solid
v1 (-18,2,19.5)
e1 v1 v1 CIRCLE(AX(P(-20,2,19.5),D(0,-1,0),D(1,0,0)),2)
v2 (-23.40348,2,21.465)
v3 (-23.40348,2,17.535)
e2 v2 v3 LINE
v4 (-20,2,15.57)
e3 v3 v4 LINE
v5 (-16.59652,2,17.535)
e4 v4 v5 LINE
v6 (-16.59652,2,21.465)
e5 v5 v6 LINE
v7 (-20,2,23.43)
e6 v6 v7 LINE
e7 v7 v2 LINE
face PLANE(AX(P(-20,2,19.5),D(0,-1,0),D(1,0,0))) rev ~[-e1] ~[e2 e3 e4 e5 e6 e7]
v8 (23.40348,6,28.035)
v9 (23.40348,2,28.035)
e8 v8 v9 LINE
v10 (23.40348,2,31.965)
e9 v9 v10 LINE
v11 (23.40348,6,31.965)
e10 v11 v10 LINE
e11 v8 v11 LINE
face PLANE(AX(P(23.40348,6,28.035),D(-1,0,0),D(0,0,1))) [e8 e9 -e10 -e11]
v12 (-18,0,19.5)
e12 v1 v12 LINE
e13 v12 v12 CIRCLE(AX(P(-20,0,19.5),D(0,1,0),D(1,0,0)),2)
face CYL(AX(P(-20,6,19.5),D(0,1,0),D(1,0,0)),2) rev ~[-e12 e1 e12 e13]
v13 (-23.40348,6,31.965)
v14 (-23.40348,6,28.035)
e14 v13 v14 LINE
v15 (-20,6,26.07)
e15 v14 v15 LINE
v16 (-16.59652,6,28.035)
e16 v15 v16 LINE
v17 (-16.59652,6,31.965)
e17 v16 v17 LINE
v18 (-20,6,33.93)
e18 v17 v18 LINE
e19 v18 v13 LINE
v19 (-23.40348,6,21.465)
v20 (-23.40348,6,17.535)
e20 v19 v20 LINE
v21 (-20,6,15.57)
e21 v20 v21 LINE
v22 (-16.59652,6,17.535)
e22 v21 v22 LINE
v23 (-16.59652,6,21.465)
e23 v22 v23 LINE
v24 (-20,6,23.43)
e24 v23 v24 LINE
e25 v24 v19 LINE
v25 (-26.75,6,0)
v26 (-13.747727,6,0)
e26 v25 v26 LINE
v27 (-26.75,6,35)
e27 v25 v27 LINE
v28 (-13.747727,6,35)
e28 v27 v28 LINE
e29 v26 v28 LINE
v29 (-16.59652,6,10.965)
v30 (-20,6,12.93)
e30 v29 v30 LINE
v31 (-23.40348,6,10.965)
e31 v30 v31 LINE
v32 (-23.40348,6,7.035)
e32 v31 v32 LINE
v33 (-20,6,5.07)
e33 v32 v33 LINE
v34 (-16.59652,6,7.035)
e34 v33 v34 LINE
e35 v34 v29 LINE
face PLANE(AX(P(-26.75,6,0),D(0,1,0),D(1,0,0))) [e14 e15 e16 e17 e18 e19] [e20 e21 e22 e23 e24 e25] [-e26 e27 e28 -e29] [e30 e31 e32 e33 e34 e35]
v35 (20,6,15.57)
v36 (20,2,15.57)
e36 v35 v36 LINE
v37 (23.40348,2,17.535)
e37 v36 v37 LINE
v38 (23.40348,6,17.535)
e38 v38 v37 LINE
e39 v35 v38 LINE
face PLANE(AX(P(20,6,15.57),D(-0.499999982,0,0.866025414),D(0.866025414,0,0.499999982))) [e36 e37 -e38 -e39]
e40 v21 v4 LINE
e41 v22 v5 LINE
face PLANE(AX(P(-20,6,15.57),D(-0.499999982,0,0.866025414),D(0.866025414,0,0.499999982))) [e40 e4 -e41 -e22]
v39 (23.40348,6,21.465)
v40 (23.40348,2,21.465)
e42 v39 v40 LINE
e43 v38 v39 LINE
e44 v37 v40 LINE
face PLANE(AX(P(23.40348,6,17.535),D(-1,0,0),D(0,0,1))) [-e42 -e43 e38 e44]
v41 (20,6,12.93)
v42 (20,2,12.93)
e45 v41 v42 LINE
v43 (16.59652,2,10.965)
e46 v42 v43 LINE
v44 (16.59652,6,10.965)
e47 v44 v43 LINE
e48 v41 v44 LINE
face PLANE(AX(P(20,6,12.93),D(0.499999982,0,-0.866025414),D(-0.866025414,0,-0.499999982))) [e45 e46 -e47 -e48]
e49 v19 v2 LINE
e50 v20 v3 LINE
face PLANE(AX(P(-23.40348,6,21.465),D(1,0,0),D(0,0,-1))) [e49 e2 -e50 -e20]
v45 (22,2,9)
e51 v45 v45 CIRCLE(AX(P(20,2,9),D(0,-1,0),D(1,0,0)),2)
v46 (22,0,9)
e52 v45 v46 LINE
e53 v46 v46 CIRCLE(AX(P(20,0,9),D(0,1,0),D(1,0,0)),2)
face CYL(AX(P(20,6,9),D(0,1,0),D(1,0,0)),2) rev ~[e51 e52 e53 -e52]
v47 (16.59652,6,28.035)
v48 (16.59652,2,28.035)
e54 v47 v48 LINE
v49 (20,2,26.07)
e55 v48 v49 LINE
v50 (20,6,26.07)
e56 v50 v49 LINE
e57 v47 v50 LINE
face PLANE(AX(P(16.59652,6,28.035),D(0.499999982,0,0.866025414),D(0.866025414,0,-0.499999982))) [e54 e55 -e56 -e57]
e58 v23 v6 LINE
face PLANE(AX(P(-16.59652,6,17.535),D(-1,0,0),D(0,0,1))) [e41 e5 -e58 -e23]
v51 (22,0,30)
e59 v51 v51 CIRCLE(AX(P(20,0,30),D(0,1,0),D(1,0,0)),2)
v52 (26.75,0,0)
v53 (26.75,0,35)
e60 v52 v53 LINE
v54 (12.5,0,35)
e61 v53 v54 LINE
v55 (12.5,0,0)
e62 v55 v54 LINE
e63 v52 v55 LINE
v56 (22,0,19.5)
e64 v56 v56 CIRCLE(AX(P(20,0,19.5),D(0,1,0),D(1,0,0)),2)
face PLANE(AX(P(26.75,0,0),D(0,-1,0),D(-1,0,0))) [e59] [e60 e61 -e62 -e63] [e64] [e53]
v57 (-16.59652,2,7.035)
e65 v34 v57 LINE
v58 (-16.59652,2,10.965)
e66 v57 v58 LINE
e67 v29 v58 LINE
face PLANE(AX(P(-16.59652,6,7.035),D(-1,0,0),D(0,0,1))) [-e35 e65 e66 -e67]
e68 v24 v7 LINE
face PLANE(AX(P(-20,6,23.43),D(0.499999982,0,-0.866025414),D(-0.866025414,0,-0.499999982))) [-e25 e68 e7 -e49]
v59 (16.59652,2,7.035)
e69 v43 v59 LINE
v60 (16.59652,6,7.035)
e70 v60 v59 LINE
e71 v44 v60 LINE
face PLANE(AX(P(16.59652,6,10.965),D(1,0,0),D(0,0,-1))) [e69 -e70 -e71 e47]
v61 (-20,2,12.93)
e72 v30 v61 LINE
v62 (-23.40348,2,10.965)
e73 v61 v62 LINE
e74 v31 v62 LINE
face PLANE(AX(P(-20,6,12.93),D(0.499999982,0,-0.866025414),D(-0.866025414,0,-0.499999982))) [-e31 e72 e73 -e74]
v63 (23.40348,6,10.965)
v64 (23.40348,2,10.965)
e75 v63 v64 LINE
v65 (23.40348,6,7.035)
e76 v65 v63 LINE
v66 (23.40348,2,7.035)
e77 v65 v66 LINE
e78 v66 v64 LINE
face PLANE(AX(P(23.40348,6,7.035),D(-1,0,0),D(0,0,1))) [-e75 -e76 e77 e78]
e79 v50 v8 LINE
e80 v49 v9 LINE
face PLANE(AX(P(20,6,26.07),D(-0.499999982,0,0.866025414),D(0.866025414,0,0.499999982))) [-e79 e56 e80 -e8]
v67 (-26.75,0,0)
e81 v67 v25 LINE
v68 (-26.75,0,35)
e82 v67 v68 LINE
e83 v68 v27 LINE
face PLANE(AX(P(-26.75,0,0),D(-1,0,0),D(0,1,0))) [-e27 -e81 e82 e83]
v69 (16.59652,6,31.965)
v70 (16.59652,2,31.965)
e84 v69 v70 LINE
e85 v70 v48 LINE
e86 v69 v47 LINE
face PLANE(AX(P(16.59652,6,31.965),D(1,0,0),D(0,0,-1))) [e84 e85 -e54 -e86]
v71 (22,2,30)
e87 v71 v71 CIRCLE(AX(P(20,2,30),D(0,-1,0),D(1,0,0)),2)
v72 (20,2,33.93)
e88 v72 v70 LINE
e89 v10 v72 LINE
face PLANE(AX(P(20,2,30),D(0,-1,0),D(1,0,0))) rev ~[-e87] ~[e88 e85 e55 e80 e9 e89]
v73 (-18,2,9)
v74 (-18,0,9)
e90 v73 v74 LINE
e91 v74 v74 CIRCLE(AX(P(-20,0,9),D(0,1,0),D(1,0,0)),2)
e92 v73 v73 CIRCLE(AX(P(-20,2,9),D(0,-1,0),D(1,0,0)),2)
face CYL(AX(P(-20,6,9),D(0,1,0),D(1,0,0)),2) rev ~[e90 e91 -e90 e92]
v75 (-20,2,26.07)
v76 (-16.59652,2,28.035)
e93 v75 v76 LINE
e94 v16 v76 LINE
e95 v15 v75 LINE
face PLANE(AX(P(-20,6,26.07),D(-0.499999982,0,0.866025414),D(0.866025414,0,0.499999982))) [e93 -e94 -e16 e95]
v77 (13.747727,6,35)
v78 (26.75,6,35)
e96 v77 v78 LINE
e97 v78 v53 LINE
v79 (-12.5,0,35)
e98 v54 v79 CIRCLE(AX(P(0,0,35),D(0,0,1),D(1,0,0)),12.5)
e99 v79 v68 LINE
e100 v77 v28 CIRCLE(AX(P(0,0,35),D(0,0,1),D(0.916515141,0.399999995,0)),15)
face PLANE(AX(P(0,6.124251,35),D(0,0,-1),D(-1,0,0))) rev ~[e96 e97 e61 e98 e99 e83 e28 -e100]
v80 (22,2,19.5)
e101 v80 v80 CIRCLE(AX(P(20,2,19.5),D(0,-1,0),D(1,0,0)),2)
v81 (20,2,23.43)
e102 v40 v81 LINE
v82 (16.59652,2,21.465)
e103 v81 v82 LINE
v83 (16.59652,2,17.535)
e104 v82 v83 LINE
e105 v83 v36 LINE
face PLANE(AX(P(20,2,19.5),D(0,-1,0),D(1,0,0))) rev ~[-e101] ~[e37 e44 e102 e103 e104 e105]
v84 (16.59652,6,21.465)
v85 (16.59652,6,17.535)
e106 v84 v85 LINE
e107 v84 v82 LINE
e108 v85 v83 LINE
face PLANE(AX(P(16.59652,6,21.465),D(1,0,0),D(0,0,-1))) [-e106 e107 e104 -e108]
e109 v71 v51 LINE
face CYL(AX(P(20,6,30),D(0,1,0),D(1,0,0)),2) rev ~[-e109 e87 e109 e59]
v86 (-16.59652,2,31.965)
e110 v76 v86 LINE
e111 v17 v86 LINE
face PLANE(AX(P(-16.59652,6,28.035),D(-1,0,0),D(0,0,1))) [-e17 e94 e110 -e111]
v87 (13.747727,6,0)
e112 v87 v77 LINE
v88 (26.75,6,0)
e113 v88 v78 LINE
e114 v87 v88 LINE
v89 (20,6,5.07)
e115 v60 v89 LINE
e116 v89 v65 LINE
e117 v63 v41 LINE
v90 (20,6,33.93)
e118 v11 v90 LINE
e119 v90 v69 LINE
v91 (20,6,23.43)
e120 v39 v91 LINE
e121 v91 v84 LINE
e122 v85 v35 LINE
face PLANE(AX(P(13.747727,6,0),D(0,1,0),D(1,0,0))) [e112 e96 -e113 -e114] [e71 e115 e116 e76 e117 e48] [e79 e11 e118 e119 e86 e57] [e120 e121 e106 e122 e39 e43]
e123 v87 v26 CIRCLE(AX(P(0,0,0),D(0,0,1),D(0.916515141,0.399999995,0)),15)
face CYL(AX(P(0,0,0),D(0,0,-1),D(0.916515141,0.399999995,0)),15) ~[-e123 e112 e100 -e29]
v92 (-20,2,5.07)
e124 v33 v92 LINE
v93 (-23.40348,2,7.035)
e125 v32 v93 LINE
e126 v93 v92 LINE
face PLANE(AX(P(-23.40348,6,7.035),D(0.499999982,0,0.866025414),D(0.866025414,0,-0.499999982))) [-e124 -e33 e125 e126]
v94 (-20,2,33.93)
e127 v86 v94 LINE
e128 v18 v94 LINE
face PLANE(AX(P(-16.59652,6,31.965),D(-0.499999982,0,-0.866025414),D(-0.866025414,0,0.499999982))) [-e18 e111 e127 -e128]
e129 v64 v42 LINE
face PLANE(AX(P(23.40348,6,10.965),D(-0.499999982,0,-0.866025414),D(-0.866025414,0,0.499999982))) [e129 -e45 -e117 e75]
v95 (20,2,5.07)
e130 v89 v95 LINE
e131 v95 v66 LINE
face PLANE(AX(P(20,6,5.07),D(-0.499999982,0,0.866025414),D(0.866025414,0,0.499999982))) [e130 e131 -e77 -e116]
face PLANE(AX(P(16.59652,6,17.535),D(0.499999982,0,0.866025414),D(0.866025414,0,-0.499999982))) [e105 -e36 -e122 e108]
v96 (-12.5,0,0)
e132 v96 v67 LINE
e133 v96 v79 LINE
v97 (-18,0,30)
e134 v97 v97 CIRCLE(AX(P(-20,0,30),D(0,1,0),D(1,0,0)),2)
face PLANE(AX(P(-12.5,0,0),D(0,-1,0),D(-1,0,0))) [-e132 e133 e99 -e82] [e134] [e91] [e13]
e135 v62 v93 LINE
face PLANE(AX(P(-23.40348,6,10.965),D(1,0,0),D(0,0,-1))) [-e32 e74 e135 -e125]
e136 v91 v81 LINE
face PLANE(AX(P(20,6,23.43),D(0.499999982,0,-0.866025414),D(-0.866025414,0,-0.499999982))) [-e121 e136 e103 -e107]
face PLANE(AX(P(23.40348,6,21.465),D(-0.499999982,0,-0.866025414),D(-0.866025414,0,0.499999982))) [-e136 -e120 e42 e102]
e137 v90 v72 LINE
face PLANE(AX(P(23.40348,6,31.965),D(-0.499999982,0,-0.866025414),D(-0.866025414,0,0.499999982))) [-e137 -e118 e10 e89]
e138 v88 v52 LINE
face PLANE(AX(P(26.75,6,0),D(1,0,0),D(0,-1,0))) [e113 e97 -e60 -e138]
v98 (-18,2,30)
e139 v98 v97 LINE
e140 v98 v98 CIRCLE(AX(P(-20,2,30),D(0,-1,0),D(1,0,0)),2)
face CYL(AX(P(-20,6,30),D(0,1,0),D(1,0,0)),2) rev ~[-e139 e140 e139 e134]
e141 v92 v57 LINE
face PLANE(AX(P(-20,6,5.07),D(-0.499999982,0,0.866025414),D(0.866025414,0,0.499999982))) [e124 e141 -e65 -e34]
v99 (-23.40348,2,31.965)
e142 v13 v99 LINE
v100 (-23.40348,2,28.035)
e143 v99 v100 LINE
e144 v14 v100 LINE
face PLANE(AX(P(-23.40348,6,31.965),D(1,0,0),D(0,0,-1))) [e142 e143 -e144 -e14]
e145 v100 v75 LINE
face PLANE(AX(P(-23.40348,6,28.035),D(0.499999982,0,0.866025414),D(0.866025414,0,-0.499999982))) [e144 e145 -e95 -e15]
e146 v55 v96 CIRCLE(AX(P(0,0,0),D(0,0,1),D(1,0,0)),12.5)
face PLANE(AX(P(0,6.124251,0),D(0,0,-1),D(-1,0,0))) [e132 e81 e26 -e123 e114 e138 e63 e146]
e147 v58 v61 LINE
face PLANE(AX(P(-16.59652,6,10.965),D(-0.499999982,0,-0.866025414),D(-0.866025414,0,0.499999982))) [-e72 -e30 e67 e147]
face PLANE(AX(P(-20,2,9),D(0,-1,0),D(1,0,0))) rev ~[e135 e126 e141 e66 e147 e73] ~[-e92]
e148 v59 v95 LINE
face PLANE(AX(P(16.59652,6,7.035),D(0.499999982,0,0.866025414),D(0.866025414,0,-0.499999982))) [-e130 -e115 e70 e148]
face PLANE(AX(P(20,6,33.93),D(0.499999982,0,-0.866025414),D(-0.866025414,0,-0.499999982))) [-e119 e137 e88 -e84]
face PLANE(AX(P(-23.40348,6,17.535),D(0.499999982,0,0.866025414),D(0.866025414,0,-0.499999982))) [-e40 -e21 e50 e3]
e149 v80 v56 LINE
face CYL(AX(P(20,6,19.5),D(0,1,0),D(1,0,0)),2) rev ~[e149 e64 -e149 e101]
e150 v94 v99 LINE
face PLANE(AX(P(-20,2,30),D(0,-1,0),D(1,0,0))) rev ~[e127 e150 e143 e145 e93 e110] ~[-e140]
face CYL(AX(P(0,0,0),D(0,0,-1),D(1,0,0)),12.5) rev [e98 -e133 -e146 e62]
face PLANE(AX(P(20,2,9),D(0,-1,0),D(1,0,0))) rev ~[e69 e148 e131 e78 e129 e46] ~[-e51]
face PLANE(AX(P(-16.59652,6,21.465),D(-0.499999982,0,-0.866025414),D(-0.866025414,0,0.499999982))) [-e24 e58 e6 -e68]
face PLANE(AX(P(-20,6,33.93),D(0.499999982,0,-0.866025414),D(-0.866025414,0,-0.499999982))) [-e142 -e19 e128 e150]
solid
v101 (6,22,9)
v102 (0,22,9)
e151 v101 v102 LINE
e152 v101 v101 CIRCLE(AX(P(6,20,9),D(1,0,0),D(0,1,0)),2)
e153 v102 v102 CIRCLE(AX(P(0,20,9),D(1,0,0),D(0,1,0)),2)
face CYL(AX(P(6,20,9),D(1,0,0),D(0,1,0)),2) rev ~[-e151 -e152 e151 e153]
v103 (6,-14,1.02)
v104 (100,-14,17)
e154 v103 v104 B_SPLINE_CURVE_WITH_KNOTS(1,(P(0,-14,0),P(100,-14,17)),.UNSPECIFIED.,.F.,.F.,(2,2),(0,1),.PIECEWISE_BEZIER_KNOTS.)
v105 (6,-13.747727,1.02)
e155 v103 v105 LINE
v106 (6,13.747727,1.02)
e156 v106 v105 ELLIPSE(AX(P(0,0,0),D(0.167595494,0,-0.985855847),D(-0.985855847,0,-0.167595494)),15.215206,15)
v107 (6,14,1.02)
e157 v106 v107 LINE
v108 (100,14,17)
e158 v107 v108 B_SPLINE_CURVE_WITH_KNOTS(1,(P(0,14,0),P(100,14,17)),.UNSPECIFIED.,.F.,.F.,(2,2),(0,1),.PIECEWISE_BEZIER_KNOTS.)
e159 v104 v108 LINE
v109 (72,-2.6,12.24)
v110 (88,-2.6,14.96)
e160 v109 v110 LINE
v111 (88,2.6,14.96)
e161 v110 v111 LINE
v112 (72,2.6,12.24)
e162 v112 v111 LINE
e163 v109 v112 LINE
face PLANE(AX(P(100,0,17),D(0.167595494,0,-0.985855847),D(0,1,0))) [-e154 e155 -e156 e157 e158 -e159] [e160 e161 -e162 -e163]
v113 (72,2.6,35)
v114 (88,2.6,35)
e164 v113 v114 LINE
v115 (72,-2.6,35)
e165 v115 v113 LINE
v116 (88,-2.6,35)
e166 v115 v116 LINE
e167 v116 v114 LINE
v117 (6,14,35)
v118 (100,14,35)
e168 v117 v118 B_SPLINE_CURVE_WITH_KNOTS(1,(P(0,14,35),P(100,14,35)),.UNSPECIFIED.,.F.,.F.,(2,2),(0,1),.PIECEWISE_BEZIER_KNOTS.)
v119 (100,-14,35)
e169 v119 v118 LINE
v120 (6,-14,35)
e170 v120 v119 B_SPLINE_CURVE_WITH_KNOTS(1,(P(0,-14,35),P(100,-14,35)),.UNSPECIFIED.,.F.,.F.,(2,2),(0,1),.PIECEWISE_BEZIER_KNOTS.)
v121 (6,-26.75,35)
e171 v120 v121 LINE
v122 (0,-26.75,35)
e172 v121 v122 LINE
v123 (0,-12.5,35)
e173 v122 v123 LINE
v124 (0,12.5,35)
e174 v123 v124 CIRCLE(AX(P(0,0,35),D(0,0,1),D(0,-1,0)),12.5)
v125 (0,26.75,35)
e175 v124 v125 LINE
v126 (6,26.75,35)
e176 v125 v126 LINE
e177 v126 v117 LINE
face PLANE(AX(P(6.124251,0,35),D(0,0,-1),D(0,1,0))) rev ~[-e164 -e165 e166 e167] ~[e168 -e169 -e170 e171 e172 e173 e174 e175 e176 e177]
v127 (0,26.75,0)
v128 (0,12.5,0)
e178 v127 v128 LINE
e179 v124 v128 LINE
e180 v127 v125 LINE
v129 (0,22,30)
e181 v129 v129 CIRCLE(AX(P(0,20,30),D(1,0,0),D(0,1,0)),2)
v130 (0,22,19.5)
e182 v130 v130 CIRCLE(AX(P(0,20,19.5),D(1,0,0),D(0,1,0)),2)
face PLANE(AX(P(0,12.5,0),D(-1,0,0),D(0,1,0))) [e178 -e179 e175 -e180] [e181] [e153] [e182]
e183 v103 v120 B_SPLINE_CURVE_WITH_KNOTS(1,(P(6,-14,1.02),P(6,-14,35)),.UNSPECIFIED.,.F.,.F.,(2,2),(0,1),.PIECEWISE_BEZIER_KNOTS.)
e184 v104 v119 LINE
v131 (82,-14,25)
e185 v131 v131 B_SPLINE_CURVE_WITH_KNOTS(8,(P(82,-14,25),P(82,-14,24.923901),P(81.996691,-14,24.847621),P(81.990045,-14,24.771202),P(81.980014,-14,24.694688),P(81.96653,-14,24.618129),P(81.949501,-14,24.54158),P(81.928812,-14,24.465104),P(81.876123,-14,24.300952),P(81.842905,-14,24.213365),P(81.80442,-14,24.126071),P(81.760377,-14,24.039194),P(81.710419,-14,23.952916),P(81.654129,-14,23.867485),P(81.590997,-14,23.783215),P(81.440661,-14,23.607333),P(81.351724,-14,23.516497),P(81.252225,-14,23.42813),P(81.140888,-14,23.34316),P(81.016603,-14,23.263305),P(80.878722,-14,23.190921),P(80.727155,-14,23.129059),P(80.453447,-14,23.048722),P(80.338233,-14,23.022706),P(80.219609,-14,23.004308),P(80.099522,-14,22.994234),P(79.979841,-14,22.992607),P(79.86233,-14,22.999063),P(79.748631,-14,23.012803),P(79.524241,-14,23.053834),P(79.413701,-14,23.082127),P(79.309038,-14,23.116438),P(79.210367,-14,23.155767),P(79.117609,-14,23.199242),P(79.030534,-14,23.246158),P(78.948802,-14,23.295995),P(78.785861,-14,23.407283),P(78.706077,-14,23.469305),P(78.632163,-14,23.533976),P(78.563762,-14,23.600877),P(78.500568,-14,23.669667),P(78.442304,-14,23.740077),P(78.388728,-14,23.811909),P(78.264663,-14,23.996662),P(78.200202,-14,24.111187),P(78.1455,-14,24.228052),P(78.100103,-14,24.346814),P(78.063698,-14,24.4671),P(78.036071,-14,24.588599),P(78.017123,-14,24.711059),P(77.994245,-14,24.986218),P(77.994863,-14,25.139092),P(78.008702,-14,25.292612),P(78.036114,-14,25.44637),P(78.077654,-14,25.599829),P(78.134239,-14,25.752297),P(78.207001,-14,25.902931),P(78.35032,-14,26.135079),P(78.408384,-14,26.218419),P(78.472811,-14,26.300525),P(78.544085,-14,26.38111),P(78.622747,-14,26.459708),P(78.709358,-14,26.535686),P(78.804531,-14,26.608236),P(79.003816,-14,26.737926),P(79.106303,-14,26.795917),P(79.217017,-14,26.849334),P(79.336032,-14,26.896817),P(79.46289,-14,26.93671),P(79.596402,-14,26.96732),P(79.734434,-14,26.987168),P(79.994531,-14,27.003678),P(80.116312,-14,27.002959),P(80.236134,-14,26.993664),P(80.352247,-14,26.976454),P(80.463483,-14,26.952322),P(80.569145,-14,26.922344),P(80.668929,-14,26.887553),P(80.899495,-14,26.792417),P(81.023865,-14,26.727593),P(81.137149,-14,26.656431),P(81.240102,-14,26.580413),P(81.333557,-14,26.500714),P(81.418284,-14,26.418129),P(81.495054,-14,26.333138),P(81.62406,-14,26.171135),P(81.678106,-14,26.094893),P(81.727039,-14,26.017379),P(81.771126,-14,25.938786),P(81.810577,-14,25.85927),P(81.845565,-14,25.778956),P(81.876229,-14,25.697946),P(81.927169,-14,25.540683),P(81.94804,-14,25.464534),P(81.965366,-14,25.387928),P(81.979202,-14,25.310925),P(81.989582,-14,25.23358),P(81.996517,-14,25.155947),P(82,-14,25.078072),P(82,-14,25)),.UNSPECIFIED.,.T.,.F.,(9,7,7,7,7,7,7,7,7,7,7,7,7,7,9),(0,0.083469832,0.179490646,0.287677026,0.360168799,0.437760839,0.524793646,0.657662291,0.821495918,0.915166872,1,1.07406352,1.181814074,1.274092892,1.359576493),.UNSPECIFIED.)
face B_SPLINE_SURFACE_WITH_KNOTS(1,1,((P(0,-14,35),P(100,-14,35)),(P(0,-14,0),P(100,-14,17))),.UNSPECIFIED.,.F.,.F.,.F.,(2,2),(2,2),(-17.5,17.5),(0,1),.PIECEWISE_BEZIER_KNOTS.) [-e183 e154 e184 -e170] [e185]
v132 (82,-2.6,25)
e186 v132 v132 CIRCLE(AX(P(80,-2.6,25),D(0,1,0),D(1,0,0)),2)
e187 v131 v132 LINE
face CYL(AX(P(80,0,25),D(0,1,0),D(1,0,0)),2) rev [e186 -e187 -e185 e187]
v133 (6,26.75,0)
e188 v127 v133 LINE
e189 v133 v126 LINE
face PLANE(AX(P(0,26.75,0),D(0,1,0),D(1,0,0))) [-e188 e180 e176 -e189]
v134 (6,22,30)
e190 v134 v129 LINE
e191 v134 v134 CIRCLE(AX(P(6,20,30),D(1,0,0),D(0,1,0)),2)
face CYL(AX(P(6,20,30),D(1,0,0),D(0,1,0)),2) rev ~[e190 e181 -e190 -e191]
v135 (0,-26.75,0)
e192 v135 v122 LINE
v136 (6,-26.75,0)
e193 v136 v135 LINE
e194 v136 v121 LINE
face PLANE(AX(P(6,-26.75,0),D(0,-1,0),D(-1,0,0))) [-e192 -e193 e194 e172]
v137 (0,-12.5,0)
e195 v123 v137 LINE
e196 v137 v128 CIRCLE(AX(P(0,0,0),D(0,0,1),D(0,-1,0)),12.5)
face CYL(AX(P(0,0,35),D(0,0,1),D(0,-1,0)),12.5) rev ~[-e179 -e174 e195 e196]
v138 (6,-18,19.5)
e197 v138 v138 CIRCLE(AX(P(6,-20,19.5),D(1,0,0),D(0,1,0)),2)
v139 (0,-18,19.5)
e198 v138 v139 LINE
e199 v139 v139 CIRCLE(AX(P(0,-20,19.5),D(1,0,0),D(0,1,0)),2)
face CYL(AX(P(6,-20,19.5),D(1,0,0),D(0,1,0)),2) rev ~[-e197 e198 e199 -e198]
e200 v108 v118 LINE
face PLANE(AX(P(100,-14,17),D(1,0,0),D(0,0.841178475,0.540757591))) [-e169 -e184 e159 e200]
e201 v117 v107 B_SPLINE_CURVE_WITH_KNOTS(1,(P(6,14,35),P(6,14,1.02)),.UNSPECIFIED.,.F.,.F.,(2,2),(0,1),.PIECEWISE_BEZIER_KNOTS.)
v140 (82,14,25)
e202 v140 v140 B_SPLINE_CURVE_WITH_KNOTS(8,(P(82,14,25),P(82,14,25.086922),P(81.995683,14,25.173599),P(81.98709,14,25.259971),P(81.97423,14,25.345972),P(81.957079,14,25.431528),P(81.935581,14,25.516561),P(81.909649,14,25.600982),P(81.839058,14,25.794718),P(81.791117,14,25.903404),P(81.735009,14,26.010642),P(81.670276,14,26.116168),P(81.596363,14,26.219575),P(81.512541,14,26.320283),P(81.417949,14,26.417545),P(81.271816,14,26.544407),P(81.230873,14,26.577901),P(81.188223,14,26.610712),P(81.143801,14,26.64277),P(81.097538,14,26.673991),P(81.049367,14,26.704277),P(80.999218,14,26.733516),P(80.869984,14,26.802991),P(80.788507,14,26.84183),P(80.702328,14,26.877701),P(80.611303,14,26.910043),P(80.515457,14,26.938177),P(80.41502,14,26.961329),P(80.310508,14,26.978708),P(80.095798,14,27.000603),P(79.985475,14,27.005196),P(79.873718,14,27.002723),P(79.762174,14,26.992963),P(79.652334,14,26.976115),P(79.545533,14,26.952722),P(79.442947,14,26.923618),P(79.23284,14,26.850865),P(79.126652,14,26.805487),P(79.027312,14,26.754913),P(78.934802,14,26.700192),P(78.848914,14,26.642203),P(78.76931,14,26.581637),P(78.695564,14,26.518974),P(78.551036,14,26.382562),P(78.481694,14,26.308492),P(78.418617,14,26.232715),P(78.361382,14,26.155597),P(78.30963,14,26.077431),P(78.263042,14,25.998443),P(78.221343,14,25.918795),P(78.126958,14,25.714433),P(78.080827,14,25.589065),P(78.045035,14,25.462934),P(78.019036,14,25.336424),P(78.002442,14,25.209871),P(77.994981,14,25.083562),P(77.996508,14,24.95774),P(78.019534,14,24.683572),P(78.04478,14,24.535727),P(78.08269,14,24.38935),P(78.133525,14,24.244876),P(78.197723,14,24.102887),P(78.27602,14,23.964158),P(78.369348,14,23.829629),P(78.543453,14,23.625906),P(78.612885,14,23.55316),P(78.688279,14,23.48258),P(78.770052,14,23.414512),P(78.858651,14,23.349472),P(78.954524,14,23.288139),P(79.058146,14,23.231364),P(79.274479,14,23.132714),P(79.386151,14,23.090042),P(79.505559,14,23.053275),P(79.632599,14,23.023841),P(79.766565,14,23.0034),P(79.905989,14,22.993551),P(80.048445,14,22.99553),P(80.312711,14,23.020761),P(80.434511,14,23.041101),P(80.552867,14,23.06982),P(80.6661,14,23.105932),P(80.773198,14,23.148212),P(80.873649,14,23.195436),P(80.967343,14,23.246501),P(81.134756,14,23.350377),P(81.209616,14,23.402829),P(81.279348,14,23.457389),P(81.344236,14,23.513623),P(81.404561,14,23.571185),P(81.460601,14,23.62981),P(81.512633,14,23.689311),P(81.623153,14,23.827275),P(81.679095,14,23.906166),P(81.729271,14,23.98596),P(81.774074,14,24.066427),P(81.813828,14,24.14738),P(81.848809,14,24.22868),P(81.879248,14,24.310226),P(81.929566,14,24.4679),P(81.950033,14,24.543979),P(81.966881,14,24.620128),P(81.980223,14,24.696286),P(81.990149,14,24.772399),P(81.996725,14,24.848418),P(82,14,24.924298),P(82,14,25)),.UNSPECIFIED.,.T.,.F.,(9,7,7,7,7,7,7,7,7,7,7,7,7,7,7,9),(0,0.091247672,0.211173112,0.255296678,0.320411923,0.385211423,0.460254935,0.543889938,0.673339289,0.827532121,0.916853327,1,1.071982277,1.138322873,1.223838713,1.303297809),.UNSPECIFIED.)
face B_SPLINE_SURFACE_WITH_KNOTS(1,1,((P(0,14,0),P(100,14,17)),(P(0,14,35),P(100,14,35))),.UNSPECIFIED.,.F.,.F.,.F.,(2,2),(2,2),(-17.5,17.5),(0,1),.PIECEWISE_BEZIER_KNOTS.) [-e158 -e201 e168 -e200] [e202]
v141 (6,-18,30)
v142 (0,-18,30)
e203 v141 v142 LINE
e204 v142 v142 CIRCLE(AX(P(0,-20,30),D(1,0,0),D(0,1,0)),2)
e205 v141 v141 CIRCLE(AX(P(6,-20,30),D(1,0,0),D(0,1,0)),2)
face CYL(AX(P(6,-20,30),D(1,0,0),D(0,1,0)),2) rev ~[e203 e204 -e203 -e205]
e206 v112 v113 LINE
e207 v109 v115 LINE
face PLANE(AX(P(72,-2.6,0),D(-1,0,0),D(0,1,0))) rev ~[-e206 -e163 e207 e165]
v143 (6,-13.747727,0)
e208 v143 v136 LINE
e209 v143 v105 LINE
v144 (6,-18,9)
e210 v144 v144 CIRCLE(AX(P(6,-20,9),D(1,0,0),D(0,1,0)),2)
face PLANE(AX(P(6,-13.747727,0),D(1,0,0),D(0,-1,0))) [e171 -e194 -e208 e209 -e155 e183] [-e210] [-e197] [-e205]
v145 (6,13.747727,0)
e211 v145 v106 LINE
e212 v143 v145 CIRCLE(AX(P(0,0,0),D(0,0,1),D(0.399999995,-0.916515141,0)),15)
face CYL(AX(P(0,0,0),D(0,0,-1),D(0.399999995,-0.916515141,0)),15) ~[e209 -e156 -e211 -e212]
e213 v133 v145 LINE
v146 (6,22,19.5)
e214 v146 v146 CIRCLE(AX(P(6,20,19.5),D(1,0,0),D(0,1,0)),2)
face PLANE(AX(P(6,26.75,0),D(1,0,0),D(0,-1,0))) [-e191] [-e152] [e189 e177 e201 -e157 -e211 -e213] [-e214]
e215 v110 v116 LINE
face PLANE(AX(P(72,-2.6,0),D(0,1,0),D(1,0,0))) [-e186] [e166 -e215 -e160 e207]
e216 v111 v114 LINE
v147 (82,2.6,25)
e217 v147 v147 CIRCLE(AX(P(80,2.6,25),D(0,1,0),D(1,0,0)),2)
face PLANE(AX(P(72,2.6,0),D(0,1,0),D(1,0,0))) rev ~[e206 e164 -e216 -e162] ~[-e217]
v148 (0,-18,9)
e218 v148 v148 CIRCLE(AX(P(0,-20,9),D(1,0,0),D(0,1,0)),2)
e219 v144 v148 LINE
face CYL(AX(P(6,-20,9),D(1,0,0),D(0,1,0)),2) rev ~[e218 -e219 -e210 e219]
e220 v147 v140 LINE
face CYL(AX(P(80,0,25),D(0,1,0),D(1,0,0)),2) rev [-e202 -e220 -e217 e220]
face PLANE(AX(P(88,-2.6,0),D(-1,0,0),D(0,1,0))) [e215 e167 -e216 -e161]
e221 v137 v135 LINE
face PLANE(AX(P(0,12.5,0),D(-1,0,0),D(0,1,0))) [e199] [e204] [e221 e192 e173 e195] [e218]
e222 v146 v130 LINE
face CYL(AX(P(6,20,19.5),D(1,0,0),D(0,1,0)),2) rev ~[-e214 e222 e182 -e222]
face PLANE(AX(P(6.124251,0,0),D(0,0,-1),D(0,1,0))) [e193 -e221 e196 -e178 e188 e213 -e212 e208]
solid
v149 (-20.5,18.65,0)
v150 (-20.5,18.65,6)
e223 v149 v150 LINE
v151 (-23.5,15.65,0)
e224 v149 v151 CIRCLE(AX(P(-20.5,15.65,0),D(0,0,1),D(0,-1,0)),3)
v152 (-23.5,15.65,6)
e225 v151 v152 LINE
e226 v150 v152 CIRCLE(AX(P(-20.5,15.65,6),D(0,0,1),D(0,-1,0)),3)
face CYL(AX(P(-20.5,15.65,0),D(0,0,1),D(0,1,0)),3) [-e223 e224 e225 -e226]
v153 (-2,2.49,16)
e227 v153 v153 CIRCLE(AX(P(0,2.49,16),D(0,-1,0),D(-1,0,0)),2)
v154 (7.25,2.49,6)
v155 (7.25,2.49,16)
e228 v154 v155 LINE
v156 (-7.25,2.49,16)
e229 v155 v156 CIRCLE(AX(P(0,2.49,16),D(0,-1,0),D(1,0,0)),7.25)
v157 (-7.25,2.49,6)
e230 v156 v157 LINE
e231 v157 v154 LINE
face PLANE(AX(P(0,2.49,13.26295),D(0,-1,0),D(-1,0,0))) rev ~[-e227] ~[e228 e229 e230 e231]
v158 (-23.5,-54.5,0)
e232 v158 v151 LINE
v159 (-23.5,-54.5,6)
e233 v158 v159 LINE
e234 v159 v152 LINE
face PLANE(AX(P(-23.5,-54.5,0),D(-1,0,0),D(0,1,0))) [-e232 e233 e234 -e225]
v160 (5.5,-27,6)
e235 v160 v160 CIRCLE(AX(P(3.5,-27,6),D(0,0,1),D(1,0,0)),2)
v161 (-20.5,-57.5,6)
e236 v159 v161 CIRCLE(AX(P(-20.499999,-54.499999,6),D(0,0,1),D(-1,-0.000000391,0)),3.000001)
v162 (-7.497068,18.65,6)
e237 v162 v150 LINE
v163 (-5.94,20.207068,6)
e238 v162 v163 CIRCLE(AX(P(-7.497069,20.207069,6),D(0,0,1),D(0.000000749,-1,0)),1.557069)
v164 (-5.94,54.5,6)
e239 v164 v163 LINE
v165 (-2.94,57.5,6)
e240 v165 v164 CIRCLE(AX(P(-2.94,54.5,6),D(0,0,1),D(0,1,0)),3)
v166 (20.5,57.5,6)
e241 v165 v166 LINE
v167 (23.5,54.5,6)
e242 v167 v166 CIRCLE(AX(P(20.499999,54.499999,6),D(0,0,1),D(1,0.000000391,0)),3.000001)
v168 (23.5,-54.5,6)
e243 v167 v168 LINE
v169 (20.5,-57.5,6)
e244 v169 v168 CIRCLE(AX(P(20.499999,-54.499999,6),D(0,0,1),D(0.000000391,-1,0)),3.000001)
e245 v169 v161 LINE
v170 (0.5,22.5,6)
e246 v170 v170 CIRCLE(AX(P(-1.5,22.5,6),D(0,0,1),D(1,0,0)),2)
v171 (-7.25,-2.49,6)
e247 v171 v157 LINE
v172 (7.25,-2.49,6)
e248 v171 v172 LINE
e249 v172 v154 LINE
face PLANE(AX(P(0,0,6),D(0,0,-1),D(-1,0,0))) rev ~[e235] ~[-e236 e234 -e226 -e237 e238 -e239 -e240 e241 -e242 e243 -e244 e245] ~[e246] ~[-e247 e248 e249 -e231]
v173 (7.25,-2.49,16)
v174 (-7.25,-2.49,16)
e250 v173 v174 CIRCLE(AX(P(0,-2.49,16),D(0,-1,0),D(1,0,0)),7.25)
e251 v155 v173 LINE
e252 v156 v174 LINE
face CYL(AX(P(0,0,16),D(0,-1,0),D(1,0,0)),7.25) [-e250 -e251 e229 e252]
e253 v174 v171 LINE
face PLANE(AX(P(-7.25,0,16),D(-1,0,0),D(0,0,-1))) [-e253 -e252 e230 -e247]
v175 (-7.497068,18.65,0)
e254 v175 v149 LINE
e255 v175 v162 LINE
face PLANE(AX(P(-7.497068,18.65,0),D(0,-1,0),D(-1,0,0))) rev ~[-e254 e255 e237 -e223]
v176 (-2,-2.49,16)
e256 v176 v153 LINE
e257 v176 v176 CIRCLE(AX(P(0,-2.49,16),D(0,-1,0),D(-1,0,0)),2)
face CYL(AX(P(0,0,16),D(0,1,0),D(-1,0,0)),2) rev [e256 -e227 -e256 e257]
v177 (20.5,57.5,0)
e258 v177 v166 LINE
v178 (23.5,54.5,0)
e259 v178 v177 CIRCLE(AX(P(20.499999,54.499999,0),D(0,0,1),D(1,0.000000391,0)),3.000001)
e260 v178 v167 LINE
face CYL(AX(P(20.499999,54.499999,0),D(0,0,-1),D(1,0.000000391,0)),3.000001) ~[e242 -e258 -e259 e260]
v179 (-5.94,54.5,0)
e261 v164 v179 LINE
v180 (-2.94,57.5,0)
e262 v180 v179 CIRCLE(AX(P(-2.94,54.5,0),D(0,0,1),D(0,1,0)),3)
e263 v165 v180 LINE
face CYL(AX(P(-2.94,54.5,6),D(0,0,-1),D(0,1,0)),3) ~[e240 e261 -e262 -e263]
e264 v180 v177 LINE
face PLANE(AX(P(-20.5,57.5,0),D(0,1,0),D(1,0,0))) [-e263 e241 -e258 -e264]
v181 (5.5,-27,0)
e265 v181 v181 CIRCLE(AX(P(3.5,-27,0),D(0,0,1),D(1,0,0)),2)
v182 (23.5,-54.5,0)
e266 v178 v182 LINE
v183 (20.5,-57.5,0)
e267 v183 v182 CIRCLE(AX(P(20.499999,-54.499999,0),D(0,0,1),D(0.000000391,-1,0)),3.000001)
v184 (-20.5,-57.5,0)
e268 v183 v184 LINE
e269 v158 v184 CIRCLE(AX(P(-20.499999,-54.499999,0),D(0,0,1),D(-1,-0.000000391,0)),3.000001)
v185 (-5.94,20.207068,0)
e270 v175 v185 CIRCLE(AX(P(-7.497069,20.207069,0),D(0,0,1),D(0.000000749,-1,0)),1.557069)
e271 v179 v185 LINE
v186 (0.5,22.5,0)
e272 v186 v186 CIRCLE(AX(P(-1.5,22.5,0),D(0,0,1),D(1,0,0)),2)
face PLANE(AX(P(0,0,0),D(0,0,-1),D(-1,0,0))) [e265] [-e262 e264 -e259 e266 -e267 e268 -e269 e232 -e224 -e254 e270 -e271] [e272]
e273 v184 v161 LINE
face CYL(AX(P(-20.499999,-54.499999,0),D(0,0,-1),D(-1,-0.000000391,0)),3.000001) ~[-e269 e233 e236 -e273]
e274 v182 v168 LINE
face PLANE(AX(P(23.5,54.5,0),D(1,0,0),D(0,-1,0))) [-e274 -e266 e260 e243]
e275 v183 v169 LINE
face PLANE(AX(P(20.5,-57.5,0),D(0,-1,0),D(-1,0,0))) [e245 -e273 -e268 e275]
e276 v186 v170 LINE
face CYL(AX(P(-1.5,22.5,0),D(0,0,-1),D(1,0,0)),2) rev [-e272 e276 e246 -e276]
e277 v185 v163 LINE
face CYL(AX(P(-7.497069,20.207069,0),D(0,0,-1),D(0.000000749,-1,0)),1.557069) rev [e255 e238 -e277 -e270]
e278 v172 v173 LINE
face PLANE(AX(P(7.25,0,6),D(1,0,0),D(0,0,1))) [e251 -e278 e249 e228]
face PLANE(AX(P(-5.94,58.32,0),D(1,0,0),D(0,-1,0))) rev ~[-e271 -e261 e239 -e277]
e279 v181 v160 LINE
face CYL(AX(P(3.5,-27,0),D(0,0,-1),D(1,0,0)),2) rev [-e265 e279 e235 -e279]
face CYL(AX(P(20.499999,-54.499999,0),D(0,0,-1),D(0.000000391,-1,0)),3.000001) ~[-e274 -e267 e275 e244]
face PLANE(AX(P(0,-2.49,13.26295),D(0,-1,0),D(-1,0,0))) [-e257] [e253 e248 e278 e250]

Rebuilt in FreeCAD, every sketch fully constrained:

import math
import FreeCAD as App
import Part
import Sketcher

V = App.Vector
Q = App.Units.Quantity


def edges_at(feature, points):
    """Names of the edges that pass closest to the given points."""
    edges = feature.Shape.Edges
    near = lambda p: min(range(len(edges)), key=lambda i: edges[i].distToShape(Part.Vertex(*p))[0])
    return sorted({f"Edge{near(p) + 1}" for p in points})


def add_polygon(sketch, points):
    """Adds a closed chain of lines whose ends are joined by coincident constraints."""
    first, n = sketch.GeometryCount, len(points)
    for a, b in zip(points, points[1:] + points[:1]):
        sketch.addGeometry(Part.LineSegment(App.Vector(*a, 0), App.Vector(*b, 0)), False)
    for i in range(n):
        sketch.addConstraint(Sketcher.Constraint("Coincident", first + i, 2, first + (i + 1) % n, 1))

doc = App.newDocument("Part")
body = doc.addObject("PartDesign::Body", "Body")

# Sketch on YZ plane
sketch1 = body.newObject("Sketcher::SketchObject", "Sketch")
sketch1.AttachmentSupport = (doc.getObject("YZ_Plane"), [""])
sketch1.MapMode = "FlatFace"
add_polygon(sketch1, [(-14, 35), (-14, 0), (14, 0), (14, 35)])  # lines 0-3
sketch1.addConstraint([
    Sketcher.Constraint("Vertical", 0),
    Sketcher.Constraint("Horizontal", 1),
    Sketcher.Constraint("Vertical", 2),
    Sketcher.Constraint("Horizontal", 3),
    Sketcher.Constraint("Symmetric", 0, 2, 1, 2, -1, 1),
    Sketcher.Constraint("DistanceX", 1, 1, 1, 2, 28.0),
    Sketcher.Constraint("DistanceY", 0, 2, 0, 1, 35.0),
])

# Sketch on YZ plane
sketch2 = body.newObject("Sketcher::SketchObject", "Sketch001")
sketch2.AttachmentSupport = (doc.getObject("YZ_Plane"), [""])
sketch2.MapMode = "FlatFace"
sketch2.AttachmentOffset = App.Placement(V(0, 0, 100), App.Rotation())
add_polygon(sketch2, [(-14, 35), (-14, 17), (14, 17), (14, 35)])  # lines 0-3
sketch2.addConstraint([
    Sketcher.Constraint("Vertical", 0),
    Sketcher.Constraint("Horizontal", 1),
    Sketcher.Constraint("Vertical", 2),
    Sketcher.Constraint("Horizontal", 3),
    Sketcher.Constraint("DistanceX", 1, 1, 1, 2, 28.0),
    Sketcher.Constraint("DistanceY", 0, 2, 0, 1, 18.0),
    Sketcher.Constraint("DistanceX", 0, 2, -1, 1, 14.0),
    Sketcher.Constraint("DistanceY", -1, 1, 0, 2, 17.0),
])

additiveloft = body.newObject("PartDesign::AdditiveLoft", "AdditiveLoft")
additiveloft.Profile = sketch1
additiveloft.Sections = [sketch2]
body2 = doc.addObject("PartDesign::Body", "Body001")

# Sketch on XY plane
sketch3 = body2.newObject("Sketcher::SketchObject", "Sketch002")
sketch3.AttachmentSupport = (doc.getObject("XY_Plane001"), [""])
sketch3.MapMode = "FlatFace"
sketch3.addGeometry([
    Part.ArcOfCircle(Part.Circle(V(0, 0, 0), V(0, 0, 1), 12), math.radians(-90), math.radians(90)),  # 0
    Part.LineSegment(V(0, -12, 0), V(0, -27, 0)),  # 1
    Part.LineSegment(V(0, -27, 0), V(6, -27, 0)),  # 2
    Part.LineSegment(V(6, -27, 0), V(6, -14, 0)),  # 3
    Part.ArcOfCircle(Part.Circle(V(0, 0, 0), V(0, 0, 1), 15), math.radians(-66), math.radians(66)),  # 4
    Part.LineSegment(V(6, 14, 0), V(6, 27, 0)),  # 5
    Part.LineSegment(V(6, 27, 0), V(0, 27, 0)),  # 6
    Part.LineSegment(V(0, 27, 0), V(0, 12, 0)),  # 7
], False)
sketch3.addConstraint([
    Sketcher.Constraint("Coincident", 0, 1, 1, 1),
    Sketcher.Constraint("Coincident", 1, 2, 2, 1),
    Sketcher.Constraint("Coincident", 2, 2, 3, 1),
    Sketcher.Constraint("Coincident", 3, 2, 4, 1),
    Sketcher.Constraint("Coincident", 4, 2, 5, 1),
    Sketcher.Constraint("Coincident", 5, 2, 6, 1),
    Sketcher.Constraint("Coincident", 6, 2, 7, 1),
    Sketcher.Constraint("Coincident", 7, 2, 0, 2),
    Sketcher.Constraint("Vertical", 1),
    Sketcher.Constraint("Horizontal", 2),
    Sketcher.Constraint("Vertical", 3),
    Sketcher.Constraint("Vertical", 5),
    Sketcher.Constraint("Horizontal", 6),
    Sketcher.Constraint("Vertical", 7),
    Sketcher.Constraint("Coincident", 0, 3, -1, 1),
    Sketcher.Constraint("Coincident", 4, 3, -1, 1),
    Sketcher.Constraint("Symmetric", 1, 2, 6, 2, -1, 1),
    Sketcher.Constraint("PointOnObject", 0, 1, -2),
    Sketcher.Constraint("Vertical", 3, 2, 4, 2),
    Sketcher.Constraint("Radius", 4, 15.0),
    Sketcher.Constraint("Radius", 0, 12.5),
    Sketcher.Constraint("DistanceX", 2, 1, 2, 2, 6.0),
    Sketcher.Constraint("DistanceY", 1, 2, 1, 1, 14.25),
])
pad1 = body2.newObject("PartDesign::Pad", "Pad")
pad1.Profile = sketch3
pad1.Length = 35
doc.recompute()

boolean = body2.newObject("PartDesign::Boolean", "Boolean")
boolean.Type = "Fuse"
boolean.addObjects([body])

# Sketch on XY plane
sketch4 = body2.newObject("Sketcher::SketchObject", "Sketch003")
sketch4.AttachmentSupport = (doc.getObject("XY_Plane001"), [""])
sketch4.MapMode = "FlatFace"
sketch4.AttachmentOffset = App.Placement(V(0, 0, 35), App.Rotation())
sketch4.addGeometry([
    Part.ArcOfCircle(Part.Circle(V(0, 0, 0), V(0, 0, 1), 12), math.radians(-90), math.radians(90)),
    Part.LineSegment(V(0, 12, 0), V(0, -12, 0)),
], False)
sketch4.addConstraint([
    Sketcher.Constraint("Coincident", 0, 1, 1, 2),
    Sketcher.Constraint("Coincident", 1, 1, 0, 2),
    Sketcher.Constraint("Vertical", 1),
    Sketcher.Constraint("Coincident", 0, 3, -1, 1),
    Sketcher.Constraint("PointOnObject", 0, 1, -2),
    Sketcher.Constraint("Radius", 0, 12.5),
])
pocket1 = body2.newObject("PartDesign::Pocket", "Pocket")
pocket1.Profile = sketch4
pocket1.Length = 35

# Sketch on XZ plane
sketch5 = body2.newObject("Sketcher::SketchObject", "Sketch004")
sketch5.AttachmentSupport = (doc.getObject("XZ_Plane001"), [""])
sketch5.MapMode = "FlatFace"
sketch5.addGeometry(Part.Circle(V(80, 25, 0), V(0, 0, 1), 2), False)
sketch5.addConstraint([
    Sketcher.Constraint("Diameter", 0, 4.0),
    Sketcher.Constraint("DistanceX", -1, 1, 0, 3, 80.0),
    Sketcher.Constraint("DistanceY", -1, 1, 0, 3, 25.0),
])
pocket2 = body2.newObject("PartDesign::Pocket", "Pocket001")
pocket2.Profile = sketch5
pocket2.Type = "ThroughAll"
pocket2.Midplane = True

# Sketch on XY plane
sketch6 = body2.newObject("Sketcher::SketchObject", "Sketch005")
sketch6.AttachmentSupport = (doc.getObject("XY_Plane001"), [""])
sketch6.MapMode = "FlatFace"
add_polygon(sketch6, [(72, 3), (72, -3), (88, -3), (88, 3)])  # lines 0-3
sketch6.addConstraint([
    Sketcher.Constraint("Vertical", 0),
    Sketcher.Constraint("Horizontal", 1),
    Sketcher.Constraint("Vertical", 2),
    Sketcher.Constraint("Horizontal", 3),
    Sketcher.Constraint("DistanceX", 1, 1, 1, 2, 16.0),
    Sketcher.Constraint("DistanceY", 0, 2, 0, 1, 5.2),
    Sketcher.Constraint("DistanceX", -1, 1, 0, 2, 72.0),
    Sketcher.Constraint("DistanceY", 0, 2, -1, 1, 2.6),
])
pocket3 = body2.newObject("PartDesign::Pocket", "Pocket002")
pocket3.Profile = sketch6
pocket3.Type = "ThroughAll"
pocket3.Reversed = True

# Sketch on YZ plane
sketch7 = body2.newObject("Sketcher::SketchObject", "Sketch006")
sketch7.AttachmentSupport = (doc.getObject("YZ_Plane001"), [""])
sketch7.MapMode = "FlatFace"
sketch7.AttachmentOffset = App.Placement(V(0, 0, 6), App.Rotation())
sketch7.addGeometry([
    Part.Circle(V(-20, 30, 0), V(0, 0, 1), 2),
    Part.Circle(V(20, 30, 0), V(0, 0, 1), 2),
], False)
sketch7.addConstraint([
    Sketcher.Constraint("Equal", 0, 1),
    Sketcher.Constraint("Symmetric", 0, 3, 1, 3, -2),
    Sketcher.Constraint("Diameter", 0, 4.0),
    Sketcher.Constraint("DistanceX", 0, 3, -1, 1, 20.0),
    Sketcher.Constraint("DistanceY", -1, 1, 0, 3, 30.0),
])
pocket4 = body2.newObject("PartDesign::Pocket", "Pocket003")
pocket4.Profile = sketch7
pocket4.Type = "ThroughAll"
doc.recompute()

linearpattern = body2.newObject("PartDesign::LinearPattern", "LinearPattern")
linearpattern.Originals = [pocket4]
linearpattern.Direction = (doc.getObject("Z_Axis001"), [""])
linearpattern.Mode = "offset"
linearpattern.Offset = 10.5
linearpattern.Occurrences = 3
linearpattern.Reversed = True
body2.Tip = linearpattern
body3 = doc.addObject("PartDesign::Body", "Body002")

# Sketch on XY plane
sketch8 = body3.newObject("Sketcher::SketchObject", "Sketch007")
sketch8.AttachmentSupport = (doc.getObject("XY_Plane002"), [""])
sketch8.MapMode = "FlatFace"
sketch8.addGeometry([
    Part.LineSegment(V(20.5, 57.5, 0), V(-20.5, 57.5, 0)),  # 0
    Part.ArcOfCircle(Part.Circle(V(-20.5, 54.5, 0), V(0, 0, 1), 3), math.radians(90), math.radians(180)),  # 1
    Part.LineSegment(V(-23.5, 54.5, 0), V(-23.5, -54.5, 0)),  # 2
    Part.ArcOfCircle(Part.Circle(V(-20.5, -54.5, 0), V(0, 0, 1), 3), math.radians(-180), math.radians(-90)),  # 3
    Part.LineSegment(V(-20.5, -57.5, 0), V(20.5, -57.5, 0)),  # 4
    Part.ArcOfCircle(Part.Circle(V(20.5, -54.5, 0), V(0, 0, 1), 3), math.radians(-90), math.radians(0)),  # 5
    Part.LineSegment(V(23.5, -54.5, 0), V(23.5, 54.5, 0)),  # 6
    Part.ArcOfCircle(Part.Circle(V(20.5, 54.5, 0), V(0, 0, 1), 3), math.radians(0), math.radians(90)),  # 7
    Part.Circle(V(3.5, -27, 0), V(0, 0, 1), 2),  # 8
    Part.Circle(V(-1.5, 22.5, 0), V(0, 0, 1), 2),  # 9
], False)
sketch8.addConstraint([
    Sketcher.Constraint("Tangent", 0, 2, 1, 1),
    Sketcher.Constraint("Tangent", 1, 2, 2, 1),
    Sketcher.Constraint("Tangent", 2, 2, 3, 1),
    Sketcher.Constraint("Tangent", 3, 2, 4, 1),
    Sketcher.Constraint("Tangent", 4, 2, 5, 1),
    Sketcher.Constraint("Tangent", 5, 2, 6, 1),
    Sketcher.Constraint("Tangent", 6, 2, 7, 1),
    Sketcher.Constraint("Tangent", 7, 2, 0, 1),
    Sketcher.Constraint("Horizontal", 0),
    Sketcher.Constraint("Vertical", 2),
    Sketcher.Constraint("Horizontal", 4),
    Sketcher.Constraint("Vertical", 6),
    Sketcher.Constraint("Equal", 1, 3),
    Sketcher.Constraint("Equal", 3, 5),
    Sketcher.Constraint("Equal", 5, 7),
    Sketcher.Constraint("Equal", 8, 9),
    Sketcher.Constraint("Symmetric", 1, 3, 5, 3, -1, 1),
    Sketcher.Constraint("Diameter", 8, 4.0),
    Sketcher.Constraint("Radius", 1, 3.000001),
    Sketcher.Constraint("DistanceX", 0, 2, 0, 1, 41.0),
    Sketcher.Constraint("DistanceY", 2, 2, 2, 1, 109.0),
    Sketcher.Constraint("DistanceY", 8, 3, -1, 1, 27.0),
    Sketcher.Constraint("DistanceX", 8, 3, 5, 3, 16.999999),
    Sketcher.Constraint("DistanceX", 1, 3, 9, 3, 18.999999),
    Sketcher.Constraint("DistanceY", 9, 3, 1, 3, 31.999999),
])
pad2 = body3.newObject("PartDesign::Pad", "Pad001")
pad2.Profile = sketch8
pad2.Length = 6

# Sketch on XZ plane
sketch9 = body3.newObject("Sketcher::SketchObject", "Sketch008")
sketch9.AttachmentSupport = (doc.getObject("XZ_Plane002"), [""])
sketch9.MapMode = "FlatFace"
sketch9.addGeometry([
    Part.LineSegment(V(7.2, 6, 0), V(7.2, 16, 0)),  # 0
    Part.ArcOfCircle(Part.Circle(V(0, 16, 0), V(0, 0, 1), 7.2), math.radians(0), math.radians(180)),  # 1
    Part.LineSegment(V(-7.2, 16, 0), V(-7.2, 6, 0)),  # 2
    Part.LineSegment(V(-7.2, 6, 0), V(7.2, 6, 0)),  # 3
    Part.Circle(V(0, 16, 0), V(0, 0, 1), 2),  # 4
], False)
sketch9.addConstraint([
    Sketcher.Constraint("Tangent", 0, 2, 1, 1),
    Sketcher.Constraint("Tangent", 1, 2, 2, 1),
    Sketcher.Constraint("Coincident", 2, 2, 3, 1),
    Sketcher.Constraint("Coincident", 3, 2, 0, 1),
    Sketcher.Constraint("Vertical", 0),
    Sketcher.Constraint("Vertical", 2),
    Sketcher.Constraint("Horizontal", 3),
    Sketcher.Constraint("Coincident", 4, 3, 1, 3),
    Sketcher.Constraint("PointOnObject", 1, 3, -2),
    Sketcher.Constraint("Diameter", 4, 4.0),
    Sketcher.Constraint("DistanceY", 0, 1, 0, 2, 10.0),
    Sketcher.Constraint("Radius", 1, 7.25),
    Sketcher.Constraint("DistanceY", -1, 1, 1, 3, 16.0),
])
pad3 = body3.newObject("PartDesign::Pad", "Pad002")
pad3.Profile = sketch9
pad3.Length = 4.98
pad3.Midplane = True

# Sketch on XY plane
sketch10 = body3.newObject("Sketcher::SketchObject", "Sketch009")
sketch10.AttachmentSupport = (doc.getObject("XY_Plane002"), [""])
sketch10.MapMode = "FlatFace"
sketch10.addGeometry([
    Part.LineSegment(V(-5.9, 58.3, 0), V(-25.4, 58.3, 0)),  # 0
    Part.LineSegment(V(-25.4, 58.3, 0), V(-25.4, 20.4, 0)),  # 1
    Part.ArcOfCircle(Part.Circle(V(-23.6, 20.4, 0), V(0, 0, 1), 1.8), math.radians(-180), math.radians(-90)),  # 2
    Part.LineSegment(V(-23.6, 18.6, 0), V(-7.5, 18.6, 0)),  # 3
    Part.ArcOfCircle(Part.Circle(V(-7.5, 20.2, 0), V(0, 0, 1), 1.6), math.radians(-90), math.radians(0)),  # 4
    Part.LineSegment(V(-5.9, 20.2, 0), V(-5.9, 58.3, 0)),  # 5
], False)
sketch10.addConstraint([
    Sketcher.Constraint("Coincident", 0, 2, 1, 1),
    Sketcher.Constraint("Tangent", 1, 2, 2, 1),
    Sketcher.Constraint("Tangent", 2, 2, 3, 1),
    Sketcher.Constraint("Tangent", 3, 2, 4, 1),
    Sketcher.Constraint("Tangent", 4, 2, 5, 1),
    Sketcher.Constraint("Coincident", 5, 2, 0, 1),
    Sketcher.Constraint("Horizontal", 0),
    Sketcher.Constraint("Vertical", 1),
    Sketcher.Constraint("Horizontal", 3),
    Sketcher.Constraint("Vertical", 5),
    Sketcher.Constraint("Radius", 2, 1.78),
    Sketcher.Constraint("DistanceX", 0, 2, 0, 1, 19.43),
    Sketcher.Constraint("DistanceY", 1, 2, 1, 1, 37.89),
    Sketcher.Constraint("DistanceX", 2, 3, -1, 1, 23.59),
    Sketcher.Constraint("DistanceY", -1, 1, 2, 3, 20.43),
    Sketcher.Constraint("Radius", 4, 1.557069),
])
pocket5 = body3.newObject("PartDesign::Pocket", "Pocket004")
pocket5.Profile = sketch10
pocket5.Length = 6
pocket5.Reversed = True
doc.recompute()

fillet = body3.newObject("PartDesign::Fillet", "Fillet")
fillet.Base = (pocket5, edges_at(pocket5, [(-5.94, 57.5, 3), (-23.5, 18.65, 3)]))
fillet.Radius = 3
body4 = doc.addObject("PartDesign::Body", "Body003")

# Sketch on XY plane
sketch11 = body4.newObject("Sketcher::SketchObject", "Sketch010")
sketch11.AttachmentSupport = (doc.getObject("XY_Plane003"), [""])
sketch11.MapMode = "FlatFace"
sketch11.addGeometry([
    Part.ArcOfCircle(Part.Circle(V(0, 0, 0), V(0, 0, 1), 12), math.radians(0), math.radians(180)),  # 0
    Part.LineSegment(V(12, 0, 0), V(27, 0, 0)),  # 1
    Part.LineSegment(V(27, 0, 0), V(27, 6, 0)),  # 2
    Part.LineSegment(V(27, 6, 0), V(14, 6, 0)),  # 3
    Part.ArcOfCircle(Part.Circle(V(0, 0, 0), V(0, 0, 1), 15), math.radians(24), math.radians(156)),  # 4
    Part.LineSegment(V(-14, 6, 0), V(-27, 6, 0)),  # 5
    Part.LineSegment(V(-27, 6, 0), V(-27, 0, 0)),  # 6
    Part.LineSegment(V(-27, 0, 0), V(-12, 0, 0)),  # 7
], False)
sketch11.addConstraint([
    Sketcher.Constraint("Coincident", 0, 1, 1, 1),
    Sketcher.Constraint("Coincident", 1, 2, 2, 1),
    Sketcher.Constraint("Coincident", 2, 2, 3, 1),
    Sketcher.Constraint("Coincident", 3, 2, 4, 1),
    Sketcher.Constraint("Coincident", 4, 2, 5, 1),
    Sketcher.Constraint("Coincident", 5, 2, 6, 1),
    Sketcher.Constraint("Coincident", 6, 2, 7, 1),
    Sketcher.Constraint("Coincident", 7, 2, 0, 2),
    Sketcher.Constraint("Horizontal", 1),
    Sketcher.Constraint("Vertical", 2),
    Sketcher.Constraint("Horizontal", 3),
    Sketcher.Constraint("Horizontal", 5),
    Sketcher.Constraint("Vertical", 6),
    Sketcher.Constraint("Horizontal", 7),
    Sketcher.Constraint("Coincident", 0, 3, -1, 1),
    Sketcher.Constraint("Coincident", 4, 3, -1, 1),
    Sketcher.Constraint("Symmetric", 1, 2, 6, 2, -1, 1),
    Sketcher.Constraint("PointOnObject", 0, 1, -1),
    Sketcher.Constraint("Horizontal", 3, 2, 4, 2),
    Sketcher.Constraint("Radius", 4, 15.0),
    Sketcher.Constraint("Radius", 0, 12.5),
    Sketcher.Constraint("DistanceY", 2, 1, 2, 2, 6.0),
    Sketcher.Constraint("DistanceX", 1, 1, 1, 2, 14.25),
])
pad4 = body4.newObject("PartDesign::Pad", "Pad003")
pad4.Profile = sketch11
pad4.Length = 35

# Sketch on XZ plane
sketch12 = body4.newObject("Sketcher::SketchObject", "Sketch011")
sketch12.AttachmentSupport = (doc.getObject("XZ_Plane003"), [""])
sketch12.MapMode = "FlatFace"
sketch12.AttachmentOffset = App.Placement(V(0, 0, -6), App.Rotation())
add_polygon(sketch12, [(-16.6, 28), (-16.6, 32), (-20, 33.9), (-23.4, 32), (-23.4, 28), (-20, 26.1)])  # lines 0-5
sketch12.addGeometry(Part.Circle(V(-20, 30, 0), V(0, 0, 1), 2), False)  # 6
add_polygon(sketch12, [(23.4, 28), (23.4, 32), (20, 33.9), (16.6, 32), (16.6, 28), (20, 26.1)])  # lines 7-12
sketch12.addGeometry(Part.Circle(V(20, 30, 0), V(0, 0, 1), 2), False)  # 13
sketch12.addConstraint([
    Sketcher.Constraint("Vertical", 0),
    Sketcher.Constraint("Vertical", 3),
    Sketcher.Constraint("Vertical", 7),
    Sketcher.Constraint("Vertical", 10),
    Sketcher.Constraint("Equal", 6, 13),
    Sketcher.Constraint("Symmetric", 6, 3, 13, 3, -2),
    Sketcher.Constraint("Symmetric", 2, 2, 7, 2, -2),
    Sketcher.Constraint("Symmetric", 1, 2, 8, 2, -2),
    Sketcher.Constraint("Symmetric", 0, 2, 9, 2, -2),
    Sketcher.Constraint("Symmetric", 4, 2, 11, 2, -2),
    Sketcher.Constraint("Parallel", 1, 4),
    Sketcher.Constraint("Parallel", 2, 5),
    Sketcher.Constraint("Parallel", 4, 8),
    Sketcher.Constraint("Parallel", 8, 11),
    Sketcher.Constraint("Parallel", 9, 12),
    Sketcher.Constraint("Horizontal", 0, 2, 2, 2),
    Sketcher.Constraint("Horizontal", 3, 2, 5, 2),
    Sketcher.Constraint("Vertical", 6, 3, 1, 2),
    Sketcher.Constraint("Diameter", 6, 4.0),
    Sketcher.Constraint("Angle", 1, Q("150.000001 deg")),
    Sketcher.Constraint("DistanceX", 6, 3, -1, 1, 20.0),
    Sketcher.Constraint("DistanceY", -1, 1, 6, 3, 30.0),
    Sketcher.Constraint("DistanceY", 0, 1, 0, 2, 3.93),
    Sketcher.Constraint("Distance", 1, 3.93),
    Sketcher.Constraint("DistanceY", -1, 1, 1, 2, 33.93),
])
pocket6 = body4.newObject("PartDesign::Pocket", "Pocket005")
pocket6.Profile = sketch12
pocket6.Length = 4
pocket6.Reversed = True
doc.recompute()

linearpattern2 = body4.newObject("PartDesign::LinearPattern", "LinearPattern001")
linearpattern2.Originals = [pocket6]
linearpattern2.Direction = (doc.getObject("Z_Axis003"), [""])
linearpattern2.Mode = "offset"
linearpattern2.Offset = 10.5
linearpattern2.Occurrences = 3
linearpattern2.Reversed = True
body4.Tip = linearpattern2

# Sketch on XZ plane
sketch13 = body4.newObject("Sketcher::SketchObject", "Sketch012")
sketch13.AttachmentSupport = (doc.getObject("XZ_Plane003"), [""])
sketch13.MapMode = "FlatFace"
sketch13.AttachmentOffset = App.Placement(V(0, 0, -6), App.Rotation())
sketch13.addGeometry(Part.Circle(V(20, 30, 0), V(0, 0, 1), 2), False)
sketch13.addConstraint([
    Sketcher.Constraint("Diameter", 0, 4.0),
    Sketcher.Constraint("DistanceX", -1, 1, 0, 3, 20.0),
    Sketcher.Constraint("DistanceY", -1, 1, 0, 3, 30.0),
])
pocket7 = body4.newObject("PartDesign::Pocket", "Pocket006")
pocket7.Profile = sketch13
pocket7.Type = "ThroughAll"
pocket7.Reversed = True

# Sketch on XZ plane
sketch14 = body4.newObject("Sketcher::SketchObject", "Sketch013")
sketch14.AttachmentSupport = (doc.getObject("XZ_Plane003"), [""])
sketch14.MapMode = "FlatFace"
sketch14.AttachmentOffset = App.Placement(V(0, 0, -6), App.Rotation())
sketch14.addGeometry(Part.Circle(V(20, 19.5, 0), V(0, 0, 1), 2), False)
sketch14.addConstraint([
    Sketcher.Constraint("Diameter", 0, 4.0),
    Sketcher.Constraint("DistanceX", -1, 1, 0, 3, 20.0),
    Sketcher.Constraint("DistanceY", -1, 1, 0, 3, 19.5),
])
pocket8 = body4.newObject("PartDesign::Pocket", "Pocket007")
pocket8.Profile = sketch14
pocket8.Type = "ThroughAll"
pocket8.Reversed = True

# Sketch on XZ plane
sketch15 = body4.newObject("Sketcher::SketchObject", "Sketch014")
sketch15.AttachmentSupport = (doc.getObject("XZ_Plane003"), [""])
sketch15.MapMode = "FlatFace"
sketch15.AttachmentOffset = App.Placement(V(0, 0, -6), App.Rotation())
sketch15.addGeometry(Part.Circle(V(20, 9, 0), V(0, 0, 1), 2), False)
sketch15.addConstraint([
    Sketcher.Constraint("Diameter", 0, 4.0),
    Sketcher.Constraint("DistanceX", -1, 1, 0, 3, 20.0),
    Sketcher.Constraint("DistanceY", -1, 1, 0, 3, 9.0),
])
pocket9 = body4.newObject("PartDesign::Pocket", "Pocket008")
pocket9.Profile = sketch15
pocket9.Type = "ThroughAll"
pocket9.Reversed = True

# Sketch on XZ plane
sketch16 = body4.newObject("Sketcher::SketchObject", "Sketch015")
sketch16.AttachmentSupport = (doc.getObject("XZ_Plane003"), [""])
sketch16.MapMode = "FlatFace"
sketch16.AttachmentOffset = App.Placement(V(0, 0, -6), App.Rotation())
sketch16.addGeometry(Part.Circle(V(-20, 30, 0), V(0, 0, 1), 2), False)
sketch16.addConstraint([
    Sketcher.Constraint("Diameter", 0, 4.0),
    Sketcher.Constraint("DistanceX", 0, 3, -1, 1, 20.0),
    Sketcher.Constraint("DistanceY", -1, 1, 0, 3, 30.0),
])
pocket10 = body4.newObject("PartDesign::Pocket", "Pocket009")
pocket10.Profile = sketch16
pocket10.Type = "ThroughAll"
pocket10.Reversed = True

# Sketch on XZ plane
sketch17 = body4.newObject("Sketcher::SketchObject", "Sketch016")
sketch17.AttachmentSupport = (doc.getObject("XZ_Plane003"), [""])
sketch17.MapMode = "FlatFace"
sketch17.AttachmentOffset = App.Placement(V(0, 0, -6), App.Rotation())
sketch17.addGeometry(Part.Circle(V(-20, 19.5, 0), V(0, 0, 1), 2), False)
sketch17.addConstraint([
    Sketcher.Constraint("Diameter", 0, 4.0),
    Sketcher.Constraint("DistanceX", 0, 3, -1, 1, 20.0),
    Sketcher.Constraint("DistanceY", -1, 1, 0, 3, 19.5),
])
pocket11 = body4.newObject("PartDesign::Pocket", "Pocket010")
pocket11.Profile = sketch17
pocket11.Type = "ThroughAll"
pocket11.Reversed = True

# Sketch on XZ plane
sketch18 = body4.newObject("Sketcher::SketchObject", "Sketch017")
sketch18.AttachmentSupport = (doc.getObject("XZ_Plane003"), [""])
sketch18.MapMode = "FlatFace"
sketch18.AttachmentOffset = App.Placement(V(0, 0, -6), App.Rotation())
sketch18.addGeometry(Part.Circle(V(-20, 9, 0), V(0, 0, 1), 2), False)
sketch18.addConstraint([
    Sketcher.Constraint("Diameter", 0, 4.0),
    Sketcher.Constraint("DistanceX", 0, 3, -1, 1, 20.0),
    Sketcher.Constraint("DistanceY", -1, 1, 0, 3, 9.0),
])
pocket12 = body4.newObject("PartDesign::Pocket", "Pocket011")
pocket12.Profile = sketch18
pocket12.Type = "ThroughAll"
pocket12.Reversed = True

doc.recompute()
